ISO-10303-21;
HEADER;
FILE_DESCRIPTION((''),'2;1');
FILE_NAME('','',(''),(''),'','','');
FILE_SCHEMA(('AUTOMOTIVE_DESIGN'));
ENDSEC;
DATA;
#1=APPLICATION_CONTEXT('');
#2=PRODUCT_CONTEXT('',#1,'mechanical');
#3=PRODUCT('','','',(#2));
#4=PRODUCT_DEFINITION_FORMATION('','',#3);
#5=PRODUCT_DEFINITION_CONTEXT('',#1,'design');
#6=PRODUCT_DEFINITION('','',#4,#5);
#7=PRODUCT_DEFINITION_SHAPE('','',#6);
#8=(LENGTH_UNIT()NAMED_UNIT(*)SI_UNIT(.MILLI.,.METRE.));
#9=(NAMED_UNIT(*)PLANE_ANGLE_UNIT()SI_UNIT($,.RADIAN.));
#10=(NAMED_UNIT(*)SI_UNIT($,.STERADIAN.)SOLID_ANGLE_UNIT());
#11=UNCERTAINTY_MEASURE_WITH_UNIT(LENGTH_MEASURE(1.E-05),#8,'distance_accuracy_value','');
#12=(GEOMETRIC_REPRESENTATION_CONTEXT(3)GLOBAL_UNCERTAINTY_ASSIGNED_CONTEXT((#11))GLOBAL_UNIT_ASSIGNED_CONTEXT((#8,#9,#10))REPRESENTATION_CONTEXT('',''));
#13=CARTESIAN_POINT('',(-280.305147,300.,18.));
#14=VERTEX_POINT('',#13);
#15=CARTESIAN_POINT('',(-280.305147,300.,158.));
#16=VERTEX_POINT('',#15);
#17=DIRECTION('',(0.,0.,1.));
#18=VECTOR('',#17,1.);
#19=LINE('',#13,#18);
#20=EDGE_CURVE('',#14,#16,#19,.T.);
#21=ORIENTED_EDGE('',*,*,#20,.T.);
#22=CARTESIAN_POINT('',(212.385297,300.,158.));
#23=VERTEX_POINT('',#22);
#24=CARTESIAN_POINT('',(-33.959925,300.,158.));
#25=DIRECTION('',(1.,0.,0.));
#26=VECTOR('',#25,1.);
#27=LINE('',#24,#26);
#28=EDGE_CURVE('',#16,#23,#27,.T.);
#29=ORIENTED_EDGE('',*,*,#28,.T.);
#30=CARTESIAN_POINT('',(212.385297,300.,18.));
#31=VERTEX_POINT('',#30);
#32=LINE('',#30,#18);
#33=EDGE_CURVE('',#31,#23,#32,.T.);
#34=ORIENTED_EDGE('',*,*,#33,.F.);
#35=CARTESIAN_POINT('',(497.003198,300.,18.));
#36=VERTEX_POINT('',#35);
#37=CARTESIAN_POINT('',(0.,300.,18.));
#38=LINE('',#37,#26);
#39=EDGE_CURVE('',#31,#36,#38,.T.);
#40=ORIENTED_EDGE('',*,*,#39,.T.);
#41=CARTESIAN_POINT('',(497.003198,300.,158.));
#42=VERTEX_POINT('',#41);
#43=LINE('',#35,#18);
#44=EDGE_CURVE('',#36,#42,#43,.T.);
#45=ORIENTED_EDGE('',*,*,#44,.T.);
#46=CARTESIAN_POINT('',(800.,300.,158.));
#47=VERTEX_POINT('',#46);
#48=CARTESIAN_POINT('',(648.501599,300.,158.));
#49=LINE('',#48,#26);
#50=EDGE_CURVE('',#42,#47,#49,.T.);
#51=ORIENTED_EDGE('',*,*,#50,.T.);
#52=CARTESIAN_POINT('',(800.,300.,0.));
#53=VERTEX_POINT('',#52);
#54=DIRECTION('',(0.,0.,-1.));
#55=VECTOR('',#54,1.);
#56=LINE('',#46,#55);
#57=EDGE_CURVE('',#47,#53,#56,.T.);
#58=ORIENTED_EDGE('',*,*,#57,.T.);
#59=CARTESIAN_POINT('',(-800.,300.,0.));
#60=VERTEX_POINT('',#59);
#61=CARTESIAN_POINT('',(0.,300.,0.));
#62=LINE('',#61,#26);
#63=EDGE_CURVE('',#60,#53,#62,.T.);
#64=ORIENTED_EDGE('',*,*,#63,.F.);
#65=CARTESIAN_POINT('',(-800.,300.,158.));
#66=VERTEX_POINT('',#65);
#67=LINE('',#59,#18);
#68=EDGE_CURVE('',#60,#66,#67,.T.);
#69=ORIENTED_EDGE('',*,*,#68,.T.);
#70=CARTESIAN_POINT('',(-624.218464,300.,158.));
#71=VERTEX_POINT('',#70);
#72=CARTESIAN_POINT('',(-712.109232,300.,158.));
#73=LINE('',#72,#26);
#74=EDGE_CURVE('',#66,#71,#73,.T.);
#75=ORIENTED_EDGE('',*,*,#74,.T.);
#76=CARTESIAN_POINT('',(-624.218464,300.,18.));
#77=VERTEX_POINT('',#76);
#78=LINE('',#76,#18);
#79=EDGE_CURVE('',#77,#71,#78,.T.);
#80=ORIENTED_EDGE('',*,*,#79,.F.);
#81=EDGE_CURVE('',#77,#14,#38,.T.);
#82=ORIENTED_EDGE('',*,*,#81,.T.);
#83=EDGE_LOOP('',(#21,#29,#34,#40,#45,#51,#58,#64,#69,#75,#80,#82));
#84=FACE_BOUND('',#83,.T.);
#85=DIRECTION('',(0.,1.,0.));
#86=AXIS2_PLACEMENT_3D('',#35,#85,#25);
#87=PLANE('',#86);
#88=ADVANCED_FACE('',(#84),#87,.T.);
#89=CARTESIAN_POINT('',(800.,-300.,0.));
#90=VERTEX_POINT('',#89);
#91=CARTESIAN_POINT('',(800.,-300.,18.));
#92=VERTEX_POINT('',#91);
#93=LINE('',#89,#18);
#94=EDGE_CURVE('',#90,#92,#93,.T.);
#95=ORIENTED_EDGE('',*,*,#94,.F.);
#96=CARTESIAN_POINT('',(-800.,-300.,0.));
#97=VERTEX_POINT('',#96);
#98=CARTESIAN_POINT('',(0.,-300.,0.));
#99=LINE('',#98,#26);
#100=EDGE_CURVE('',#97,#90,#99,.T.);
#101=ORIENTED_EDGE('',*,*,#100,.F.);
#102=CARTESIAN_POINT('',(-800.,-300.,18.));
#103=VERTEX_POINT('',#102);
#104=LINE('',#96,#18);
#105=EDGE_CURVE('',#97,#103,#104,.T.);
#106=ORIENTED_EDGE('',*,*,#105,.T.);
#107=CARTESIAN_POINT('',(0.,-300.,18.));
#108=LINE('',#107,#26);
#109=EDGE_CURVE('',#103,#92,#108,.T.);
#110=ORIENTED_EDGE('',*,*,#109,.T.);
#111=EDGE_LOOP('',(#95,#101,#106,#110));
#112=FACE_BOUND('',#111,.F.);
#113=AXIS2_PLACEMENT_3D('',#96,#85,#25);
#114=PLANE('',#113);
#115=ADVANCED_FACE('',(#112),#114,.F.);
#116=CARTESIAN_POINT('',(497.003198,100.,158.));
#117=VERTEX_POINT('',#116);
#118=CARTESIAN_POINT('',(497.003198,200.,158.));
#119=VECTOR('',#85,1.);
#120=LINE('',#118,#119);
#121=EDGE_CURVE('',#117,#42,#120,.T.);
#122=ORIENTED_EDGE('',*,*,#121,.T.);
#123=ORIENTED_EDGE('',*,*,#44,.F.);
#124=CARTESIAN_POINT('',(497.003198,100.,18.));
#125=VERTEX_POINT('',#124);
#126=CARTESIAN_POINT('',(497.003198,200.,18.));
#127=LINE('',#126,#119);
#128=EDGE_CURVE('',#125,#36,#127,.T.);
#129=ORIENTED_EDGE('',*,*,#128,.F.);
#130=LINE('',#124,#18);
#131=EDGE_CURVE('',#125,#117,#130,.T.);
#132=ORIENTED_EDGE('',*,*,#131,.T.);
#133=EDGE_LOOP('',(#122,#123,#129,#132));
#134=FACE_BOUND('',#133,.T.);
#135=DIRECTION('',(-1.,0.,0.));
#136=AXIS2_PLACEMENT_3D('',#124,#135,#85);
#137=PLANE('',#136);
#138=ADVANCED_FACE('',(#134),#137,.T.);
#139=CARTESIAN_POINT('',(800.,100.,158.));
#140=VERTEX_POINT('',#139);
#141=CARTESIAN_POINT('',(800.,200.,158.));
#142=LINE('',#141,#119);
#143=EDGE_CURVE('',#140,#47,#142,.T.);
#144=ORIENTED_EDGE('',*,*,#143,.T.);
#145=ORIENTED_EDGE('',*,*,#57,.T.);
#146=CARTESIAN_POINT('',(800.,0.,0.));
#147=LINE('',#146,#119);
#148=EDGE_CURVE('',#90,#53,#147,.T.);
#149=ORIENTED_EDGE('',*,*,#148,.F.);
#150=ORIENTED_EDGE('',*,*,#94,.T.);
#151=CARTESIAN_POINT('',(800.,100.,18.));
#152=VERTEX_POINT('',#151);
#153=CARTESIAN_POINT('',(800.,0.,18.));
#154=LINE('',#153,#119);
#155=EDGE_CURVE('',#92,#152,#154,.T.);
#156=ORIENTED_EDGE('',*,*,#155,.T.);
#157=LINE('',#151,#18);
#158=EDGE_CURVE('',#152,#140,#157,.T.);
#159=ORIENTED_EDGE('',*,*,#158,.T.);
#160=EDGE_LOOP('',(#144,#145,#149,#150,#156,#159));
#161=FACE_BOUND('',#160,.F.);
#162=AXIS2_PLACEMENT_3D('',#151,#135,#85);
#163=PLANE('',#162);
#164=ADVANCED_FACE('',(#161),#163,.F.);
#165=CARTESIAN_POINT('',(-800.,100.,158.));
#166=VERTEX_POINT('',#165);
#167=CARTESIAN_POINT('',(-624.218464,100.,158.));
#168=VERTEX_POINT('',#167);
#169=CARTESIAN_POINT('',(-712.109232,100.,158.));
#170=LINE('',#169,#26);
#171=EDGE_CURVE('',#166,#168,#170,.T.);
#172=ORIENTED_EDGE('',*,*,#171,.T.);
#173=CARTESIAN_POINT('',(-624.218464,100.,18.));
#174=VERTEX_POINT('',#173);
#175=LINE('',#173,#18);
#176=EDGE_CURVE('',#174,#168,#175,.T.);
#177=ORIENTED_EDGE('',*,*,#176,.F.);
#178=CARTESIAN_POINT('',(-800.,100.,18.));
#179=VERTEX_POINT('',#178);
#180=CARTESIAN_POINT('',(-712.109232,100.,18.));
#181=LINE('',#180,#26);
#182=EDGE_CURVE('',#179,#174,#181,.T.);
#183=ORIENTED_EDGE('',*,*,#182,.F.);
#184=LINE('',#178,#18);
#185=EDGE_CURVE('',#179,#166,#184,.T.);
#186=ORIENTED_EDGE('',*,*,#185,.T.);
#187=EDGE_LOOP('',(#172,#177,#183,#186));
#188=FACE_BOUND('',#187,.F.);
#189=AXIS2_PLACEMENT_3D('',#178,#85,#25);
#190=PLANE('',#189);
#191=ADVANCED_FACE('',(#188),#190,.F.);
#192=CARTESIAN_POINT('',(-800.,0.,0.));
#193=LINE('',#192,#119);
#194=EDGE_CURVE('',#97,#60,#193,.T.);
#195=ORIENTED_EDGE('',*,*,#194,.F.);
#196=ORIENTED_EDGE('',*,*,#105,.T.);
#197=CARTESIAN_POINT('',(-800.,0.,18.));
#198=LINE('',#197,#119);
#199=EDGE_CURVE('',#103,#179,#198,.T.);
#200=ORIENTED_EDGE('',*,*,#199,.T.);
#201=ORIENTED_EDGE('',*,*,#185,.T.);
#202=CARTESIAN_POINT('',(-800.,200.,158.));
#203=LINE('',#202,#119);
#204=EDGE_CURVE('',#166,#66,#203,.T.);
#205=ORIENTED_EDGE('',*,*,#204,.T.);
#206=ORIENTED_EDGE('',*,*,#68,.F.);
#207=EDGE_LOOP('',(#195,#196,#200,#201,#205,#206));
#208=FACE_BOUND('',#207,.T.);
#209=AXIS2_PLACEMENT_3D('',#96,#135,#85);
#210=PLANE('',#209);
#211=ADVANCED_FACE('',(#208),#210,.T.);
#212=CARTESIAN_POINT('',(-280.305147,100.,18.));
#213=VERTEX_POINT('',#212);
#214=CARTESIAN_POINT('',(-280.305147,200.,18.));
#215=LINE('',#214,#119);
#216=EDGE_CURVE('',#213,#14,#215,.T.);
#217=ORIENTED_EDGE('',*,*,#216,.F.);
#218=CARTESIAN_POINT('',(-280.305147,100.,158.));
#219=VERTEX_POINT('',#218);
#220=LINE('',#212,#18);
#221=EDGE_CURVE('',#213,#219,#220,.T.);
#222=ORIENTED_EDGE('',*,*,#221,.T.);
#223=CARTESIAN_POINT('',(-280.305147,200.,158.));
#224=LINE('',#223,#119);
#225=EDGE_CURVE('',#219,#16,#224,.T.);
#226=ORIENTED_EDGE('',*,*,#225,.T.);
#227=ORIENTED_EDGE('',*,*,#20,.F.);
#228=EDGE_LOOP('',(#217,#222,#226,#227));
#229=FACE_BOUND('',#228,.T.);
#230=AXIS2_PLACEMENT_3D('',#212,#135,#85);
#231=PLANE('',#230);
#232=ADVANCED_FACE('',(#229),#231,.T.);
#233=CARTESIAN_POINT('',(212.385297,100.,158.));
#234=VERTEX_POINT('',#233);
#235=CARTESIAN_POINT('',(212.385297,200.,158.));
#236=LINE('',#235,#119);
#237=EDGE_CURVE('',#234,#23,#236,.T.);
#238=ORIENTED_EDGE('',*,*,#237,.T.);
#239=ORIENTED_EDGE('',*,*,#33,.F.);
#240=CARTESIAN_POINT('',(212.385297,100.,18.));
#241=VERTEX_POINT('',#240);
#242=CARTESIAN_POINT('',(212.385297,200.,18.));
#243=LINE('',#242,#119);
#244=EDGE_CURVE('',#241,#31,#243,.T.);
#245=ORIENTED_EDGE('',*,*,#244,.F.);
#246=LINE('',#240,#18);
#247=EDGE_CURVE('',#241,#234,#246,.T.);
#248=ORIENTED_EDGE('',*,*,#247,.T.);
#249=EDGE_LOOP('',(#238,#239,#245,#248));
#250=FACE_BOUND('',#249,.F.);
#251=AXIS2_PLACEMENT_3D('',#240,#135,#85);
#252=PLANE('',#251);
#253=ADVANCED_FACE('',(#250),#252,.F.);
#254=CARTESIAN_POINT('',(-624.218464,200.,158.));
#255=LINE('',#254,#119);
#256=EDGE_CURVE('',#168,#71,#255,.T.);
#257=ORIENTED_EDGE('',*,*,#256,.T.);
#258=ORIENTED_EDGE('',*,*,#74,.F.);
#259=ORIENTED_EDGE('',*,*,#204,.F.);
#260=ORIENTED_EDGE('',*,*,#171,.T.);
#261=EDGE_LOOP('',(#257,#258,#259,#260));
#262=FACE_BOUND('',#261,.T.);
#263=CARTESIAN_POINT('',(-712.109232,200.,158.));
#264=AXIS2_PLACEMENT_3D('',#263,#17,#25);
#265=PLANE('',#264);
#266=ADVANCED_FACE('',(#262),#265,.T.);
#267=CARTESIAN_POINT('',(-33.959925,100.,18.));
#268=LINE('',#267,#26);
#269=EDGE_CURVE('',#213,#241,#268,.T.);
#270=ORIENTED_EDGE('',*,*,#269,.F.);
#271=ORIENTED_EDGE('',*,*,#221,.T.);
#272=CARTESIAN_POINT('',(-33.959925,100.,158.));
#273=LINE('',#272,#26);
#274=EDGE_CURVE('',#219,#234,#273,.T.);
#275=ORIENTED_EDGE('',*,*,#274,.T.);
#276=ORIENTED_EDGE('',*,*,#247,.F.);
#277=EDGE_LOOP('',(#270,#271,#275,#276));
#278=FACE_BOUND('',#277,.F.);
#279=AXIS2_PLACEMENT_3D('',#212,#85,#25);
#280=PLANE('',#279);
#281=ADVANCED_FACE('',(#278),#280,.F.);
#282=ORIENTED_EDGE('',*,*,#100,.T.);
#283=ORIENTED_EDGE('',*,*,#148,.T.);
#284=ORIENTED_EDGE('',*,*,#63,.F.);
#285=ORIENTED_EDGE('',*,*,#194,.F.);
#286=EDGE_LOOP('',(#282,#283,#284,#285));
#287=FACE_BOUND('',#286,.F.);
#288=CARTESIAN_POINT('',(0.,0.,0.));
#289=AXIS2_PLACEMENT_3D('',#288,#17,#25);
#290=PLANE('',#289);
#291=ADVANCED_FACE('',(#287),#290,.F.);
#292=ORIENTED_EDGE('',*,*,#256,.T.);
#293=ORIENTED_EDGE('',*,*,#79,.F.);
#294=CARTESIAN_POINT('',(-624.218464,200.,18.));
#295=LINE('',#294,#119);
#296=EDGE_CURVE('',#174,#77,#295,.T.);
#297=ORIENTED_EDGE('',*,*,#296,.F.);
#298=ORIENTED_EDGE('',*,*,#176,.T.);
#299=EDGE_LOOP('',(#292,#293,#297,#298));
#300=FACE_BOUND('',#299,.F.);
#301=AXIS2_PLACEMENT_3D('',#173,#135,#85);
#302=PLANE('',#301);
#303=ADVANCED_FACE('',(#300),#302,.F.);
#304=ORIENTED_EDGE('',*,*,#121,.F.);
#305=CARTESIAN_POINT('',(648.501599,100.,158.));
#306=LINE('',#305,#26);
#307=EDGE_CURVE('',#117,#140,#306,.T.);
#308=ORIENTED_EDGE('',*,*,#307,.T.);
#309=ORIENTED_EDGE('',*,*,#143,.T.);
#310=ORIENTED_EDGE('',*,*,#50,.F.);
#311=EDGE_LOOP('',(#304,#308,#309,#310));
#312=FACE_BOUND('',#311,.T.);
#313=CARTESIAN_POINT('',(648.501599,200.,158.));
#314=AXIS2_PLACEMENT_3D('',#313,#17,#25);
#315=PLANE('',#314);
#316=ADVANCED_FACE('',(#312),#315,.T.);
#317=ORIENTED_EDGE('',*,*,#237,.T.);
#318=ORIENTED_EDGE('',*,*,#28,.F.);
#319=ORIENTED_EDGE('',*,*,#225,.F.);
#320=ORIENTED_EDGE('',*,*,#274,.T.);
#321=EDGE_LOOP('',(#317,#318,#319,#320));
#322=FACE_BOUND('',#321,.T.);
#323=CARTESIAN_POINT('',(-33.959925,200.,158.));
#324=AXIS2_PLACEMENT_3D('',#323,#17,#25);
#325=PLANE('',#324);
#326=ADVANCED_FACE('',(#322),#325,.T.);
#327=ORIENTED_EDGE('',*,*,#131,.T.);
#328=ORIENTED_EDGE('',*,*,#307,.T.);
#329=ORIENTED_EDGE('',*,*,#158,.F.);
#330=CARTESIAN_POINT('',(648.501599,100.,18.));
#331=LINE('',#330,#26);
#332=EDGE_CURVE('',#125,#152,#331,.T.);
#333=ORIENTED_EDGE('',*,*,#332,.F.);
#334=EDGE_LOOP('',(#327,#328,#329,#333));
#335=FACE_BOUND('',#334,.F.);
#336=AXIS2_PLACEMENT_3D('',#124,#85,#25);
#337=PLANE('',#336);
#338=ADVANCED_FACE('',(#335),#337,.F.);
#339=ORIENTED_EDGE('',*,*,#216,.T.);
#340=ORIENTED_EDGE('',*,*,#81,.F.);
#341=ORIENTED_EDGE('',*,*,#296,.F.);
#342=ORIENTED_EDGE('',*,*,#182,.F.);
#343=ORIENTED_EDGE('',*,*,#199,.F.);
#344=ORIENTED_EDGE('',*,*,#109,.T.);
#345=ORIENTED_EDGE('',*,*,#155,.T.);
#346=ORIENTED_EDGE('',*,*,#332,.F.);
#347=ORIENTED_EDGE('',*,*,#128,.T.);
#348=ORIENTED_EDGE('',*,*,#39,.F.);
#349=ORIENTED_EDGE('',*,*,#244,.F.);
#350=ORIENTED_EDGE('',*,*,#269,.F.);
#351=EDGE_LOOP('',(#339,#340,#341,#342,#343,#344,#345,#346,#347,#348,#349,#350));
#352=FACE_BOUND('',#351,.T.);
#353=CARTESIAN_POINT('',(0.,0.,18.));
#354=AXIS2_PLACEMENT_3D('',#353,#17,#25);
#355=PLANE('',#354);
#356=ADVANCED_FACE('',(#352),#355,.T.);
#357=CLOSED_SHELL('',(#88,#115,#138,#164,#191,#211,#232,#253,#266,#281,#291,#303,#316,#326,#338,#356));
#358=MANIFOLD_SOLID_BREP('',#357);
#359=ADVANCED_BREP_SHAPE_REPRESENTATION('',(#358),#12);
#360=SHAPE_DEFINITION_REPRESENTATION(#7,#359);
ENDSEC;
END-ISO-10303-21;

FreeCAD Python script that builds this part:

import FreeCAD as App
import Part
import Sketcher

V = App.Vector


def add_polygon(sketch, points):
    """Adds a closed chain of lines whose ends are joined by coincident constraints."""
    first, n = sketch.GeometryCount, len(points)
    for a, b in zip(points, points[1:] + points[:1]):
        sketch.addGeometry(Part.LineSegment(App.Vector(*a, 0), App.Vector(*b, 0)), False)
    for i in range(n):
        sketch.addConstraint(Sketcher.Constraint("Coincident", first + i, 2, first + (i + 1) % n, 1))

doc = App.newDocument("Part")
params = doc.addObject("Spreadsheet::Sheet", "Params")
for row, (alias, value) in enumerate([
    ("sketch1_width", "1600 mm"),
    ("sketch1_height", "600 mm"),
    ("pad1_length", "18 mm"),
    ("sketch2_height", "200 mm"),
    ("pad2_length", "140 mm"),
], start=1):
    params.set(f"A{row}", alias)
    params.set(f"B{row}", "=" + value)
    params.setAlias(f"B{row}", alias)

body = doc.addObject("PartDesign::Body", "Body")

sketch1 = body.newObject("Sketcher::SketchObject", "Sketch")
sketch1.AttachmentSupport = (doc.getObject("XY_Plane"), [""])
sketch1.MapMode = "FlatFace"
add_polygon(sketch1, [(-800, 300), (-800, -300), (800, -300), (800, 300)])
sketch1.addConstraint([
    Sketcher.Constraint("Vertical", 0),
    Sketcher.Constraint("Horizontal", 1),
    Sketcher.Constraint("Vertical", 2),
    Sketcher.Constraint("Horizontal", 3),
    Sketcher.Constraint("Symmetric", 0, 2, 2, 2, -1, 1),
    Sketcher.Constraint("DistanceX", 1, 1, 1, 2, 1600.0),
    Sketcher.Constraint("DistanceY", 0, 2, 0, 1, 600.0),
])
sketch1.setExpression("Constraints[9]", "Params.sketch1_width")
sketch1.setExpression("Constraints[10]", "Params.sketch1_height")
pad1 = body.newObject("PartDesign::Pad", "Pad")
pad1.Profile = sketch1
pad1.setExpression("Length", "Params.pad1_length")

sketch2 = body.newObject("Sketcher::SketchObject", "Sketch001")
sketch2.AttachmentSupport = (doc.getObject("XY_Plane"), [""])
sketch2.MapMode = "FlatFace"
sketch2.AttachmentOffset = App.Placement(V(0, 0, 18), App.Rotation())
add_polygon(sketch2, [(497.003198, 300), (497.003198, 100), (800, 100), (800, 300)])
add_polygon(sketch2, [(-280.305147, 300), (-280.305147, 100), (212.385297, 100), (212.385297, 300)])
add_polygon(sketch2, [(-800, 300), (-800, 100), (-624.218464, 100), (-624.218464, 300)])
sketch2.addConstraint([
    Sketcher.Constraint("Vertical", 0),
    Sketcher.Constraint("Horizontal", 1),
    Sketcher.Constraint("Vertical", 2),
    Sketcher.Constraint("Horizontal", 3),
    Sketcher.Constraint("Vertical", 4),
    Sketcher.Constraint("Horizontal", 5),
    Sketcher.Constraint("Vertical", 6),
    Sketcher.Constraint("Horizontal", 7),
    Sketcher.Constraint("Vertical", 8),
    Sketcher.Constraint("Horizontal", 9),
    Sketcher.Constraint("Vertical", 10),
    Sketcher.Constraint("Horizontal", 11),
    Sketcher.Constraint("Symmetric", 1, 2, 8, 2, -2),
    Sketcher.Constraint("Horizontal", 1, 2, 4, 2),
    Sketcher.Constraint("Horizontal", 3, 2, 6, 2),
    Sketcher.Constraint("Horizontal", 7, 2, 10, 2),
    Sketcher.Constraint("DistanceY", 0, 2, 0, 1, 200.0),
    Sketcher.Constraint("DistanceY", -1, 1, 0, 2, 100.0),
    Sketcher.Constraint("DistanceX", -1, 1, 1, 2, 800.0),
    Sketcher.Constraint("DistanceX", 1, 1, 1, 2, 302.996802),
    Sketcher.Constraint("DistanceX", 5, 2, 0, 2, 284.617901),
    Sketcher.Constraint("DistanceX", 5, 1, 5, 2, 492.690444),
    Sketcher.Constraint("DistanceX", 9, 1, 9, 2, 175.781536),
])
sketch2.setExpression("Constraints[28]", "Params.sketch2_height")
pad2 = body.newObject("PartDesign::Pad", "Pad001")
pad2.Profile = sketch2
pad2.setExpression("Length", "Params.pad2_length")

doc.recompute()
